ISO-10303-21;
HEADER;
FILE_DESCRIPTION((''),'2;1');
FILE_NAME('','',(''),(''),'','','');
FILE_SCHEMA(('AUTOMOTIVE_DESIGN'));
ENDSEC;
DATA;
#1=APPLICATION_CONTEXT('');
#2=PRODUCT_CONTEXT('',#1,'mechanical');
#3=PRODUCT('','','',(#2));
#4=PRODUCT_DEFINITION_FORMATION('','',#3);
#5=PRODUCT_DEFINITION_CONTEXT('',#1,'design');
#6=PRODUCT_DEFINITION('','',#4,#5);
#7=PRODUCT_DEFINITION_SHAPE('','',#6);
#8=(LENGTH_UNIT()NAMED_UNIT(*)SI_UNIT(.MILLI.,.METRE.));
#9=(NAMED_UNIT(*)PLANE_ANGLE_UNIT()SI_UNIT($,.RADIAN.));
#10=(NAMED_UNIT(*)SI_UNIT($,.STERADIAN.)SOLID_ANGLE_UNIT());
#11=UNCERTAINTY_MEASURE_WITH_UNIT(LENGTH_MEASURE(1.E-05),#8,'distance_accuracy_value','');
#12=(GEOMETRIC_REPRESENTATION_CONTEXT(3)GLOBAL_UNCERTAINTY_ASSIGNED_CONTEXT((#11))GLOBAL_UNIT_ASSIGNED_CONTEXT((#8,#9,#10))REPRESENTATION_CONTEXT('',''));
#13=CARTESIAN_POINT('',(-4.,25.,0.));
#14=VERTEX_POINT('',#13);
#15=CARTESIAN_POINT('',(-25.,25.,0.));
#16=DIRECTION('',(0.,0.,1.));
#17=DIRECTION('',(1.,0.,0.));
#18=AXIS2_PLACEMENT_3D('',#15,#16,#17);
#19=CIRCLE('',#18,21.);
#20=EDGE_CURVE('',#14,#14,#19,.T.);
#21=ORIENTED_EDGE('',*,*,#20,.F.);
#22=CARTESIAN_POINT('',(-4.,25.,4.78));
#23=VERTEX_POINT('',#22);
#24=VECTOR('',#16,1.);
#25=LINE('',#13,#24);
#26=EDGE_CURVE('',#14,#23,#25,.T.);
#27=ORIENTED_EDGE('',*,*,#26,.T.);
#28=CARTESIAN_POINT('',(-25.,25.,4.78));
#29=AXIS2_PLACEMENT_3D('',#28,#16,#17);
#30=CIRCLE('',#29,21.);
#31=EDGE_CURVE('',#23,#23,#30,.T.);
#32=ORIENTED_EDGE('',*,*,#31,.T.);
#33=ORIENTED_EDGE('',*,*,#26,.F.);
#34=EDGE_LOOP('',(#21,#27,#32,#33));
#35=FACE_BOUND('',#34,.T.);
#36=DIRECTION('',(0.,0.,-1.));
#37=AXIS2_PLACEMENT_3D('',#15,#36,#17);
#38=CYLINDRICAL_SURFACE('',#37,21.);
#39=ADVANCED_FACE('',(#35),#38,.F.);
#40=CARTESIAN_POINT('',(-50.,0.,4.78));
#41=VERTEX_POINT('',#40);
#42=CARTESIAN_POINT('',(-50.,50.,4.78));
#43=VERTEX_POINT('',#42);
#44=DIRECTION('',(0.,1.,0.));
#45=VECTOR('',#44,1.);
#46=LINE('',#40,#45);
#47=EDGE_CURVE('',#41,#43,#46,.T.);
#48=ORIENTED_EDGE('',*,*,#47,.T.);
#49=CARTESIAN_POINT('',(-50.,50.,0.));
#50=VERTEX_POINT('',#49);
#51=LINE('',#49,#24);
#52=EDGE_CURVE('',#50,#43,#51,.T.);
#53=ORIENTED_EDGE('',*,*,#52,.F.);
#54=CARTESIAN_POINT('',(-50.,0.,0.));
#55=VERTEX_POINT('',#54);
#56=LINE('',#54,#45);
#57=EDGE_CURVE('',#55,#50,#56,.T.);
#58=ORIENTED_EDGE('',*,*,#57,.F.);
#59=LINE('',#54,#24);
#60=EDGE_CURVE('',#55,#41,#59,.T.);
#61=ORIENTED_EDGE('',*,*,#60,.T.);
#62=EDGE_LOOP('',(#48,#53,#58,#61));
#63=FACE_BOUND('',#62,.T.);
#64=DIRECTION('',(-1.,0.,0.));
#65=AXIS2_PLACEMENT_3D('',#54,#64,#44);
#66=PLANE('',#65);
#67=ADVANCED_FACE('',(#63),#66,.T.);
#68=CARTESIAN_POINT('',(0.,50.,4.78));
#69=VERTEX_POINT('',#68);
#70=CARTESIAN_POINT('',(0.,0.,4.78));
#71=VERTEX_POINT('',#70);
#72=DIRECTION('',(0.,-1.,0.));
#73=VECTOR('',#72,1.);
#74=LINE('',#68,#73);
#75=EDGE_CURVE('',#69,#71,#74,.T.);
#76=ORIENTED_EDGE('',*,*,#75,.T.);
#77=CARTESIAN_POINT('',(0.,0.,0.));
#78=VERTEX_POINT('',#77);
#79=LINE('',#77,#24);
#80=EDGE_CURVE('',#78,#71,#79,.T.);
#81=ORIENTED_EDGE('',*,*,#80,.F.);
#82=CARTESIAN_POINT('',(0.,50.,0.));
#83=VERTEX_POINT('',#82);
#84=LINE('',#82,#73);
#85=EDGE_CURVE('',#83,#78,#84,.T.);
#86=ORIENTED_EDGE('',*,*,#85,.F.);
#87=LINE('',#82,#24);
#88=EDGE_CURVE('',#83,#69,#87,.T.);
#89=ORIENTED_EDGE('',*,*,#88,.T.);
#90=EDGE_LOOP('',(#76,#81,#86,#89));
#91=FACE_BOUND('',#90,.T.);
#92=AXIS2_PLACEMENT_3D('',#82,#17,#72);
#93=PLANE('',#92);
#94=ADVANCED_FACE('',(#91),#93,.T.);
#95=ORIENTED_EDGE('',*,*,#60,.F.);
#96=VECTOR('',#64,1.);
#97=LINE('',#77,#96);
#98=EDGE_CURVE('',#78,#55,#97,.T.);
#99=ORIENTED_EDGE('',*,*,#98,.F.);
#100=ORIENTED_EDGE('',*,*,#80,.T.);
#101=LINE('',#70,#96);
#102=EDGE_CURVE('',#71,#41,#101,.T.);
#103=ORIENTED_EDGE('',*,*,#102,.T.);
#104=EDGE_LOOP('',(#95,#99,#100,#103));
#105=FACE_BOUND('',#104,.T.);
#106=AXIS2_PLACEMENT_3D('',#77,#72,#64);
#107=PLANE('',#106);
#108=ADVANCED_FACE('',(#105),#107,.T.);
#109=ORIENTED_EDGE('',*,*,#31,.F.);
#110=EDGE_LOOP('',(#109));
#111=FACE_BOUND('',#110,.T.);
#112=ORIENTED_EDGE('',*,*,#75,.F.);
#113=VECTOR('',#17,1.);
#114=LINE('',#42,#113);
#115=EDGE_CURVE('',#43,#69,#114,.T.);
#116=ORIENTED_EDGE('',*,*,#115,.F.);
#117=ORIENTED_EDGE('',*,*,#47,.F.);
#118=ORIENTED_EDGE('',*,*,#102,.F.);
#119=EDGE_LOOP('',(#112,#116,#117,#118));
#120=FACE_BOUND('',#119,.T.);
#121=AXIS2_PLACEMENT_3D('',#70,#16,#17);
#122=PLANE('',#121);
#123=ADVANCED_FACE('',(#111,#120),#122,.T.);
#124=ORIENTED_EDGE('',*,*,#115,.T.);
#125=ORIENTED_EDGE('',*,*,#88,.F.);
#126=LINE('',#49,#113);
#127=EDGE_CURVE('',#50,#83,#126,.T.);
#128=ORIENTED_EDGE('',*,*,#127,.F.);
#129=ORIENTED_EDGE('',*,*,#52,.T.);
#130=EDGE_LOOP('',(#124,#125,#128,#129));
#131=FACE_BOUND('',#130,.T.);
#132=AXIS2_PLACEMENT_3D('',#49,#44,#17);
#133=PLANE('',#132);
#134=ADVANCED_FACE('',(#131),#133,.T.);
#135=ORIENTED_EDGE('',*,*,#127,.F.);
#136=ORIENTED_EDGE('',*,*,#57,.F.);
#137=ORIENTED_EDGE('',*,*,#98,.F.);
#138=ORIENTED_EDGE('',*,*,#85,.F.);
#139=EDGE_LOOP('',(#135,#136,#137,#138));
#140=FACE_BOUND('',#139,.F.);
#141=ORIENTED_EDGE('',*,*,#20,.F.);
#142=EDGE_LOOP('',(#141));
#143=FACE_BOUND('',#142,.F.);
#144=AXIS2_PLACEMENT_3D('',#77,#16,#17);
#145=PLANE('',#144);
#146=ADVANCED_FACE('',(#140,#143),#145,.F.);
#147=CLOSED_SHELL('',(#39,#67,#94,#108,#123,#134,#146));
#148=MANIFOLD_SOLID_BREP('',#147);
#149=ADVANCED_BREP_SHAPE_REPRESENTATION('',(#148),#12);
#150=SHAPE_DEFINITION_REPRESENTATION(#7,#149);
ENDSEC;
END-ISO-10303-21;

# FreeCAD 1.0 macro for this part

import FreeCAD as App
import Part
import Sketcher

doc = App.newDocument("Part")
body = doc.addObject("PartDesign::Body", "Body")

sketch1 = body.newObject("Sketcher::SketchObject", "Sketch")
sketch1.AttachmentSupport = (doc.getObject("XY_Plane"), [""])
sketch1.MapMode = "FlatFace"
sketch1.addGeometry(Part.LineSegment(App.Vector(-50, 0, 0), App.Vector(0, 0, 0)), False)
sketch1.addGeometry(Part.LineSegment(App.Vector(0, 0, 0), App.Vector(0, 50, 0)), False)
sketch1.addGeometry(Part.LineSegment(App.Vector(0, 50, 0), App.Vector(-50, 50, 0)), False)
sketch1.addGeometry(Part.LineSegment(App.Vector(-50, 50, 0), App.Vector(-50, 0, 0)), False)
sketch1.addGeometry(Part.Circle(App.Vector(-25, 25, 0), App.Vector(0, 0, 1), 21), False)
sketch1.addConstraint(Sketcher.Constraint("Coincident", 0, 2, 1, 1))
sketch1.addConstraint(Sketcher.Constraint("Coincident", 1, 2, 2, 1))
sketch1.addConstraint(Sketcher.Constraint("Coincident", 2, 2, 3, 1))
sketch1.addConstraint(Sketcher.Constraint("Coincident", 3, 2, 0, 1))
sketch1.addConstraint(Sketcher.Constraint("Horizontal", 0))
sketch1.addConstraint(Sketcher.Constraint("Vertical", 1))
sketch1.addConstraint(Sketcher.Constraint("Horizontal", 2))
sketch1.addConstraint(Sketcher.Constraint("Vertical", 3))
sketch1.addConstraint(Sketcher.Constraint("Coincident", 0, 2, -1, 1))
sketch1.addConstraint(Sketcher.Constraint("Equal", 2, 1))
sketch1.addConstraint(Sketcher.Constraint("Diameter", 4, 42.0))
sketch1.addConstraint(Sketcher.Constraint("DistanceX", 0, 1, 0, 2, 50.0))
sketch1.addConstraint(Sketcher.Constraint("DistanceX", 4, 3, -1, 1, 25.0))
sketch1.addConstraint(Sketcher.Constraint("DistanceY", -1, 1, 4, 3, 25.0))
pad1 = body.newObject("PartDesign::Pad", "Pad")
pad1.Profile = sketch1
pad1.Length = 4.78

doc.recompute()
